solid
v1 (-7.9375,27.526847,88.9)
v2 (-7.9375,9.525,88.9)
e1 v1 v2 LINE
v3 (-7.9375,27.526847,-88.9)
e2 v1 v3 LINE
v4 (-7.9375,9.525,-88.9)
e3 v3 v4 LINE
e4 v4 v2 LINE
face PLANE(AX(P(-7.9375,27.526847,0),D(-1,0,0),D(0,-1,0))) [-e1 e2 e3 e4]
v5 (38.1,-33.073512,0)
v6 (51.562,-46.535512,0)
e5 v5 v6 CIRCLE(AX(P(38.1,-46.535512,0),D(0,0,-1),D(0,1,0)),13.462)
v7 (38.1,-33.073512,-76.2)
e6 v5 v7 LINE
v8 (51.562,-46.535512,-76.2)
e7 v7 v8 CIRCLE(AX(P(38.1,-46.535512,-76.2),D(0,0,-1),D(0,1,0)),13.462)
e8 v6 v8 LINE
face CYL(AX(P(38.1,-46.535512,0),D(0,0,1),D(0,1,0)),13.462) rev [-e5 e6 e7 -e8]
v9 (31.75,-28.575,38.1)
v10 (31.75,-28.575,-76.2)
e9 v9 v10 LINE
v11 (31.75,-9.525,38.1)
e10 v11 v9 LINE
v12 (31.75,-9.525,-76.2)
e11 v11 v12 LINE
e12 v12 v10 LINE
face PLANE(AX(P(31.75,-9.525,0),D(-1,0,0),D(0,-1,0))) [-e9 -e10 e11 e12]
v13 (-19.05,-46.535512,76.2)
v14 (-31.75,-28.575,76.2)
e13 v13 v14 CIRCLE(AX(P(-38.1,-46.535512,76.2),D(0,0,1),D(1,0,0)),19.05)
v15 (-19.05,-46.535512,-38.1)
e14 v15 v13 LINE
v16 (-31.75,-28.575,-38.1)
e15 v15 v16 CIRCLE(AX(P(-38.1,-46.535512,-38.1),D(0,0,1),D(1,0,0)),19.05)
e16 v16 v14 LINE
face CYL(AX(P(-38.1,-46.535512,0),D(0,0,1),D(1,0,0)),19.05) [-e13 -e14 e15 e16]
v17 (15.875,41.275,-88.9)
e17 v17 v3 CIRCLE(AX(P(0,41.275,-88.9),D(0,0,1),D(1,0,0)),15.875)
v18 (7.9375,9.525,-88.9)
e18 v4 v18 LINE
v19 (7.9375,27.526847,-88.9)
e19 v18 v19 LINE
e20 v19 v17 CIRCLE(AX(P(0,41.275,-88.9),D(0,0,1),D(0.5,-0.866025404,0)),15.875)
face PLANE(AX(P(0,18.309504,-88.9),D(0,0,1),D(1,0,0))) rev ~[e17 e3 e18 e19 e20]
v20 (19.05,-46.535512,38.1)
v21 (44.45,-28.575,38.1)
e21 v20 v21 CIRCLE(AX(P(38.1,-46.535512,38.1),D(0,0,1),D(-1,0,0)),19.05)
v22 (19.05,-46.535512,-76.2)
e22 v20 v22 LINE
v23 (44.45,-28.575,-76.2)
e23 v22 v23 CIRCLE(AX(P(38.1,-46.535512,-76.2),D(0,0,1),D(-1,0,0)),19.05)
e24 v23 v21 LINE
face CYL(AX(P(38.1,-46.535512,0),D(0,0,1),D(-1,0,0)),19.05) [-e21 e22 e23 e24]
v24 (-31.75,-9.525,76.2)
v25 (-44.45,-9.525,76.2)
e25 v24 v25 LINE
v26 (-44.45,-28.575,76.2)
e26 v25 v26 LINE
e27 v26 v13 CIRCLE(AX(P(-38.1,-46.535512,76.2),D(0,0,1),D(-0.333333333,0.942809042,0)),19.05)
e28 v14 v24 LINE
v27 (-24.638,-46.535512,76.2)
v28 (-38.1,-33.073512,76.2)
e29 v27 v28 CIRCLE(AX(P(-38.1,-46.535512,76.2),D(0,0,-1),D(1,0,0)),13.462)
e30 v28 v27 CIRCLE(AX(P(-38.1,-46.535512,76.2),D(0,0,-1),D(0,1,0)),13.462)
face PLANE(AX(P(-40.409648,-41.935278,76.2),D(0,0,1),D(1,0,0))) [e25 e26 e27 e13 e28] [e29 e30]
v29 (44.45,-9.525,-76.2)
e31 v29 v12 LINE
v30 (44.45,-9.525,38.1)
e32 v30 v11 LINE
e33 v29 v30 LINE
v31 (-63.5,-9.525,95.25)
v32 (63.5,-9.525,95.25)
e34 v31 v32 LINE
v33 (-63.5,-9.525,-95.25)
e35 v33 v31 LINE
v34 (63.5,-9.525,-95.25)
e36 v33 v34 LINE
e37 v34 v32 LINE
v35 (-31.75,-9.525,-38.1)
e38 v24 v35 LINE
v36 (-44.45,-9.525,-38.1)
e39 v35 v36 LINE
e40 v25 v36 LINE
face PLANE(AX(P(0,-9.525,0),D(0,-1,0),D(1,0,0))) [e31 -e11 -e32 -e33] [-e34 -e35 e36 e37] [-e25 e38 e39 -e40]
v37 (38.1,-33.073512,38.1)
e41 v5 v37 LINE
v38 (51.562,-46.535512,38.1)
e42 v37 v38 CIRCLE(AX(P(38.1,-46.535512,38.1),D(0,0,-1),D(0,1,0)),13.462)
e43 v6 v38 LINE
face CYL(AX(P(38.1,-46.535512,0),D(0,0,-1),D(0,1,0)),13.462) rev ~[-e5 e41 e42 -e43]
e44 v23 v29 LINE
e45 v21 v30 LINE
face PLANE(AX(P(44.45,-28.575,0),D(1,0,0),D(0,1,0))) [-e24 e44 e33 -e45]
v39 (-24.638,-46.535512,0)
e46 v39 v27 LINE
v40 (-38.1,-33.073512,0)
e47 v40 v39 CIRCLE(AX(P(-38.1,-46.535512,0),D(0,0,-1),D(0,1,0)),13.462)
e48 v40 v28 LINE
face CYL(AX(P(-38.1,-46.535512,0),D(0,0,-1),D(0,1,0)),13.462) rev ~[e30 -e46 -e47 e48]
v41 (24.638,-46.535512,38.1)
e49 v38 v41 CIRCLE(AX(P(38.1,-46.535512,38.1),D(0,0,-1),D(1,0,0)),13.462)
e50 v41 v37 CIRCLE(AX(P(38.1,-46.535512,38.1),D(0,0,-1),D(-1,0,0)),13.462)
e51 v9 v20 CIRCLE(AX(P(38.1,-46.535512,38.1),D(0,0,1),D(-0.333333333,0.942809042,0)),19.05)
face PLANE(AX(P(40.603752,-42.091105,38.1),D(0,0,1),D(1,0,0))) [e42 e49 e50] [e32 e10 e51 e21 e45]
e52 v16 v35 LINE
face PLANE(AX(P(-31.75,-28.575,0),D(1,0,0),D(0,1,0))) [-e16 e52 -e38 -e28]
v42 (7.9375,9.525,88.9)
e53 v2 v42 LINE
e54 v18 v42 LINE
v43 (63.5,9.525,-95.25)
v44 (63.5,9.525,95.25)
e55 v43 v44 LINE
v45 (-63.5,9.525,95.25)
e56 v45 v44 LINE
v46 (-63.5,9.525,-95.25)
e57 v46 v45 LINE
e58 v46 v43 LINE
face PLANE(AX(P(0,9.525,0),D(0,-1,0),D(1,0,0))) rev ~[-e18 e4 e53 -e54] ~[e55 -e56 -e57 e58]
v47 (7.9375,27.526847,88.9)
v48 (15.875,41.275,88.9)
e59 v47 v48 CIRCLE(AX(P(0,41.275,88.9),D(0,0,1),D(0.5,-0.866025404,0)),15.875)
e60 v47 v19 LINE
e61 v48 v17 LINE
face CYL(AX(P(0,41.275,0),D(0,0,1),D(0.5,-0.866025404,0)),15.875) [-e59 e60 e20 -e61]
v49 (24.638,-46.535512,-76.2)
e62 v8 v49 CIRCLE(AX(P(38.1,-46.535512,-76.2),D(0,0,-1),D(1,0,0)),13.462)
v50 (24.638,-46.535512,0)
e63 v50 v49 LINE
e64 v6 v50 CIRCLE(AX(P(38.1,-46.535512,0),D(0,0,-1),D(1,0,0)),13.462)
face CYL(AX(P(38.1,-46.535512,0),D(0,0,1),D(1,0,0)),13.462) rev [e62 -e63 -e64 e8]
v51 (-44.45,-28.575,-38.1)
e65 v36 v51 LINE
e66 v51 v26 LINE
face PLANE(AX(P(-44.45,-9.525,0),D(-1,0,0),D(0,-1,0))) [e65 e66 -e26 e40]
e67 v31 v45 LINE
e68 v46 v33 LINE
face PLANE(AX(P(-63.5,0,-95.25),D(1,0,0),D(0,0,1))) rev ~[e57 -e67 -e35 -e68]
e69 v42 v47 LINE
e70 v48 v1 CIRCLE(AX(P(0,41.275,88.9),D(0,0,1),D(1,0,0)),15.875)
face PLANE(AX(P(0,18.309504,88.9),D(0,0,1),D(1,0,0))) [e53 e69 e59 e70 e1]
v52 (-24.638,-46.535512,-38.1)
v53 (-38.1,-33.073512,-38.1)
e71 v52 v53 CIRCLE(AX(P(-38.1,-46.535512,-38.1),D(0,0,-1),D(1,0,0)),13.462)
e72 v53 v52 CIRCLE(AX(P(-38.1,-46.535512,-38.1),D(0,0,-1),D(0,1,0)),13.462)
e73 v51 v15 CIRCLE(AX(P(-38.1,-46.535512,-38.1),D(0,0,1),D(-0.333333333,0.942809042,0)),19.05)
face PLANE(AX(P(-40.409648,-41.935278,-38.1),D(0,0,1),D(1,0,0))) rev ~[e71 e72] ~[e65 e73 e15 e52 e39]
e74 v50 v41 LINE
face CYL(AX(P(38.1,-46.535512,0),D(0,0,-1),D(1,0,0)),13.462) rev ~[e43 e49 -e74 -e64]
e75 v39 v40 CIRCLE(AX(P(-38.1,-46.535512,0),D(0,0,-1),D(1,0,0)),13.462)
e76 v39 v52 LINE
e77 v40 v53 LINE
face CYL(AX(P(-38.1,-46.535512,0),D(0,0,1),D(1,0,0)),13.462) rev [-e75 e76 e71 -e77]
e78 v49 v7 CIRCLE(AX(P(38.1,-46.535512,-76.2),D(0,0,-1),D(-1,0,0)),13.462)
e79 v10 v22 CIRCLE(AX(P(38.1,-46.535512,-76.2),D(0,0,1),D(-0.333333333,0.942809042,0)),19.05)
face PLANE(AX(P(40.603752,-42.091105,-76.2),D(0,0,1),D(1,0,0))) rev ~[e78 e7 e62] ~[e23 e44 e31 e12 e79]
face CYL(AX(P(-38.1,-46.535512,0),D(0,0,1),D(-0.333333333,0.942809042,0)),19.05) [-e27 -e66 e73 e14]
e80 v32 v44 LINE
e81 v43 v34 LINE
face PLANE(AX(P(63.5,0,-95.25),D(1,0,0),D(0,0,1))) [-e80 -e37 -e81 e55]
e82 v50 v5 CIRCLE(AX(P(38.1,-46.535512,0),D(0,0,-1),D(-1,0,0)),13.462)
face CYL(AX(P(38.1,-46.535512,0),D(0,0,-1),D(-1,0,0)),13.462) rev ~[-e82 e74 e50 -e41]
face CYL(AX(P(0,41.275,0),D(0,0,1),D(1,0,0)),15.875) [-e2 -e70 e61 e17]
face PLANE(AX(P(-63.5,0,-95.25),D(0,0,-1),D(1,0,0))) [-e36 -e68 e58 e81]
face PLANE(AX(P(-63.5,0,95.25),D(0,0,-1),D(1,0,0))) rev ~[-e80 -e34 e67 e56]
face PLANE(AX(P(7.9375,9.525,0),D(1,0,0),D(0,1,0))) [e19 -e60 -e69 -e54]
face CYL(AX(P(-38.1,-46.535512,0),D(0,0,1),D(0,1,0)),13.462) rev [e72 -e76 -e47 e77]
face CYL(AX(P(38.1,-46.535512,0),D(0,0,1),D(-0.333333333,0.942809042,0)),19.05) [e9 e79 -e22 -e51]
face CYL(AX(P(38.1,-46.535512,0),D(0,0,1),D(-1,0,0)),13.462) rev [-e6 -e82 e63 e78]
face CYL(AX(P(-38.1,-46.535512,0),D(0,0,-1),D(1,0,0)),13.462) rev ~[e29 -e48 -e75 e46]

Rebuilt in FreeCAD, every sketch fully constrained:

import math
import FreeCAD as App
import Part
import Sketcher
Q = App.Units.Quantity


def add_polygon(sketch, points):
    """Adds a closed chain of lines whose ends are joined by coincident constraints."""
    first, n = sketch.GeometryCount, len(points)
    for a, b in zip(points, points[1:] + points[:1]):
        sketch.addGeometry(Part.LineSegment(App.Vector(*a, 0), App.Vector(*b, 0)), False)
    for i in range(n):
        sketch.addConstraint(Sketcher.Constraint("Coincident", first + i, 2, first + (i + 1) % n, 1))

doc = App.newDocument("Part")
params = doc.addObject("Spreadsheet::Sheet", "Params")
for row, (alias, value) in enumerate([
    ("sketch1_width", "5 in"),
    ("sketch1_height", "7.5 in"),
    ("pad1_length", "0.75 in"),
    ("sketch2_radius", "0.75 in"),
    ("sketch2_radius2", "0.53 in"),
    ("sketch2_width", "0.5 in"),
    ("sketch2_height", "0.75 in"),
    ("pad2_length", "3 in"),
    ("pad2_length2", "1.5 in"),
    ("sketch3_radius", "0.75 in"),
    ("sketch3_radius2", "0.53 in"),
    ("sketch3_width", "0.5 in"),
    ("sketch3_height", "0.75 in"),
    ("pad3_length", "1.5 in"),
    ("pad3_length2", "3 in"),
    ("sketch4_radius", "0.625 in"),
    ("sketch4_width", "0.625 in"),
    ("pad4_length", "7 in"),
], start=1):
    params.set(f"A{row}", alias)
    params.set(f"B{row}", "=" + value)
    params.setAlias(f"B{row}", alias)

body = doc.addObject("PartDesign::Body", "Body")

# Sketch on XZ plane
sketch1 = body.newObject("Sketcher::SketchObject", "Sketch")
sketch1.AttachmentSupport = (doc.getObject("XZ_Plane"), [""])
sketch1.MapMode = "FlatFace"
add_polygon(sketch1, [(-63.5, 95.25), (-63.5, -95.25), (63.5, -95.25), (63.5, 95.25)])  # lines 0-3
sketch1.addConstraint(Sketcher.Constraint("Vertical", 0))
sketch1.addConstraint(Sketcher.Constraint("Horizontal", 1))
sketch1.addConstraint(Sketcher.Constraint("Vertical", 2))
sketch1.addConstraint(Sketcher.Constraint("Horizontal", 3))
sketch1.addConstraint(Sketcher.Constraint("Symmetric", 0, 2, 2, 2, -1, 1))
sketch1.addConstraint(Sketcher.Constraint("DistanceX", 1, 1, 1, 2, Q("5 in")))
sketch1.addConstraint(Sketcher.Constraint("DistanceY", 0, 2, 0, 1, Q("7.5 in")))
sketch1.setExpression("Constraints[9]", "Params.sketch1_width")
sketch1.setExpression("Constraints[10]", "Params.sketch1_height")
pad1 = body.newObject("PartDesign::Pad", "Pad")
pad1.Profile = sketch1
pad1.setExpression("Length", "Params.pad1_length")
pad1.Midplane = True

# Sketch on XY plane
sketch2 = body.newObject("Sketcher::SketchObject", "Sketch001")
sketch2.AttachmentSupport = (doc.getObject("XY_Plane"), [""])
sketch2.MapMode = "FlatFace"
sketch2.addGeometry(Part.LineSegment(App.Vector(-44.45, -9.525, 0), App.Vector(-44.45, -28.575, 0)), False)
sketch2.addGeometry(Part.ArcOfCircle(Part.Circle(App.Vector(-38.1, -46.535512, 0), App.Vector(0, 0, 1), 19.05), math.radians(109.471221), math.radians(360)), False)
sketch2.addGeometry(Part.ArcOfCircle(Part.Circle(App.Vector(-38.1, -46.535512, 0), App.Vector(0, 0, 1), 19.05), math.radians(0), math.radians(70.528779)), False)
sketch2.addGeometry(Part.LineSegment(App.Vector(-31.75, -28.575, 0), App.Vector(-31.75, -9.525, 0)), False)
sketch2.addGeometry(Part.LineSegment(App.Vector(-31.75, -9.525, 0), App.Vector(-44.45, -9.525, 0)), False)
sketch2.addGeometry(Part.ArcOfCircle(Part.Circle(App.Vector(-38.1, -46.535512, 0), App.Vector(0, 0, 1), 13.462), math.radians(90), math.radians(360)), False)
sketch2.addGeometry(Part.ArcOfCircle(Part.Circle(App.Vector(-38.1, -46.535512, 0), App.Vector(0, 0, 1), 13.462), math.radians(0), math.radians(90)), False)
sketch2.addConstraint(Sketcher.Constraint("Coincident", 0, 2, 1, 1))
sketch2.addConstraint(Sketcher.Constraint("Tangent", 1, 2, 2, 1))
sketch2.addConstraint(Sketcher.Constraint("Coincident", 2, 2, 3, 1))
sketch2.addConstraint(Sketcher.Constraint("Coincident", 3, 2, 4, 1))
sketch2.addConstraint(Sketcher.Constraint("Coincident", 4, 2, 0, 1))
sketch2.addConstraint(Sketcher.Constraint("Tangent", 5, 1, 6, 2))
sketch2.addConstraint(Sketcher.Constraint("Coincident", 6, 1, 5, 2))
sketch2.addConstraint(Sketcher.Constraint("Vertical", 0))
sketch2.addConstraint(Sketcher.Constraint("Vertical", 3))
sketch2.addConstraint(Sketcher.Constraint("Horizontal", 4))
sketch2.addConstraint(Sketcher.Constraint("Coincident", 5, 3, 1, 3))
sketch2.addConstraint(Sketcher.Constraint("Equal", 1, 2))
sketch2.addConstraint(Sketcher.Constraint("Horizontal", 6, 3, 1, 2))
sketch2.addConstraint(Sketcher.Constraint("Horizontal", 0, 2, 2, 2))
sketch2.addConstraint(Sketcher.Constraint("Horizontal", 1, 2, 6, 1))
sketch2.addConstraint(Sketcher.Constraint("Vertical", 6, 3, 5, 1))
sketch2.addConstraint(Sketcher.Constraint("Radius", 1, Q("0.75 in")))
sketch2.addConstraint(Sketcher.Constraint("Radius", 5, Q("0.53 in")))
sketch2.addConstraint(Sketcher.Constraint("DistanceX", 4, 2, 4, 1, Q("0.5 in")))
sketch2.addConstraint(Sketcher.Constraint("DistanceY", 0, 2, 0, 1, Q("0.75 in")))
sketch2.addConstraint(Sketcher.Constraint("DistanceX", 1, 3, -1, 1, Q("1.5 in")))
sketch2.addConstraint(Sketcher.Constraint("DistanceY", 0, 2, -1, 1, Q("1.125 in")))
sketch2.setExpression("Constraints[16]", "Params.sketch2_radius")
sketch2.setExpression("Constraints[17]", "Params.sketch2_radius2")
sketch2.setExpression("Constraints[18]", "Params.sketch2_width")
sketch2.setExpression("Constraints[19]", "Params.sketch2_height")
pad2 = body.newObject("PartDesign::Pad", "Pad001")
pad2.Profile = sketch2
pad2.Type = "TwoLengths"
pad2.setExpression("Length", "Params.pad2_length")
pad2.setExpression("Length2", "Params.pad2_length2")

# Sketch on XY plane
sketch3 = body.newObject("Sketcher::SketchObject", "Sketch002")
sketch3.AttachmentSupport = (doc.getObject("XY_Plane"), [""])
sketch3.MapMode = "FlatFace"
sketch3.addGeometry(Part.ArcOfCircle(Part.Circle(App.Vector(38.1, -46.535512, 0), App.Vector(0, 0, 1), 19.05), math.radians(180), math.radians(430.528779)), False)
sketch3.addGeometry(Part.LineSegment(App.Vector(44.45, -28.575, 0), App.Vector(44.45, -9.525, 0)), False)
sketch3.addGeometry(Part.LineSegment(App.Vector(44.45, -9.525, 0), App.Vector(31.75, -9.525, 0)), False)
sketch3.addGeometry(Part.LineSegment(App.Vector(31.75, -9.525, 0), App.Vector(31.75, -28.575, 0)), False)
sketch3.addGeometry(Part.ArcOfCircle(Part.Circle(App.Vector(38.1, -46.535512, 0), App.Vector(0, 0, 1), 19.05), math.radians(109.471221), math.radians(180)), False)
sketch3.addGeometry(Part.ArcOfCircle(Part.Circle(App.Vector(38.1, -46.535512, 0), App.Vector(0, 0, 1), 13.462), math.radians(0), math.radians(90)), False)
sketch3.addGeometry(Part.ArcOfCircle(Part.Circle(App.Vector(38.1, -46.535512, 0), App.Vector(0, 0, 1), 13.462), math.radians(180), math.radians(360)), False)
sketch3.addGeometry(Part.ArcOfCircle(Part.Circle(App.Vector(38.1, -46.535512, 0), App.Vector(0, 0, 1), 13.462), math.radians(90), math.radians(180)), False)
sketch3.addConstraint(Sketcher.Constraint("Coincident", 0, 2, 1, 1))
sketch3.addConstraint(Sketcher.Constraint("Coincident", 1, 2, 2, 1))
sketch3.addConstraint(Sketcher.Constraint("Coincident", 2, 2, 3, 1))
sketch3.addConstraint(Sketcher.Constraint("Coincident", 3, 2, 4, 1))
sketch3.addConstraint(Sketcher.Constraint("Tangent", 4, 2, 0, 1))
sketch3.addConstraint(Sketcher.Constraint("Tangent", 5, 1, 6, 2))
sketch3.addConstraint(Sketcher.Constraint("Tangent", 6, 1, 7, 2))
sketch3.addConstraint(Sketcher.Constraint("Tangent", 7, 1, 5, 2))
sketch3.addConstraint(Sketcher.Constraint("Vertical", 1))
sketch3.addConstraint(Sketcher.Constraint("Horizontal", 2))
sketch3.addConstraint(Sketcher.Constraint("Vertical", 3))
sketch3.addConstraint(Sketcher.Constraint("Coincident", 5, 3, 0, 3))
sketch3.addConstraint(Sketcher.Constraint("Equal", 0, 4))
sketch3.addConstraint(Sketcher.Constraint("Horizontal", 0, 2, 3, 2))
sketch3.addConstraint(Sketcher.Constraint("Horizontal", 7, 3, 4, 2))
sketch3.addConstraint(Sketcher.Constraint("Horizontal", 4, 2, 5, 1))
sketch3.addConstraint(Sketcher.Constraint("Horizontal", 5, 1, 6, 1))
sketch3.addConstraint(Sketcher.Constraint("Vertical", 6, 3, 7, 1))
sketch3.addConstraint(Sketcher.Constraint("Radius", 0, Q("0.75 in")))
sketch3.addConstraint(Sketcher.Constraint("Radius", 5, Q("0.53 in")))
sketch3.addConstraint(Sketcher.Constraint("DistanceX", 2, 2, 2, 1, Q("0.5 in")))
sketch3.addConstraint(Sketcher.Constraint("DistanceY", 1, 1, 1, 2, Q("0.75 in")))
sketch3.addConstraint(Sketcher.Constraint("DistanceX", -1, 1, 0, 3, Q("1.5 in")))
sketch3.addConstraint(Sketcher.Constraint("DistanceY", 0, 2, -1, 1, Q("1.125 in")))
sketch3.setExpression("Constraints[18]", "Params.sketch3_radius")
sketch3.setExpression("Constraints[19]", "Params.sketch3_radius2")
sketch3.setExpression("Constraints[20]", "Params.sketch3_width")
sketch3.setExpression("Constraints[21]", "Params.sketch3_height")
pad3 = body.newObject("PartDesign::Pad", "Pad002")
pad3.Profile = sketch3
pad3.Type = "TwoLengths"
pad3.setExpression("Length", "Params.pad3_length")
pad3.setExpression("Length2", "Params.pad3_length2")

# Sketch on XY plane
sketch4 = body.newObject("Sketcher::SketchObject", "Sketch003")
sketch4.AttachmentSupport = (doc.getObject("XY_Plane"), [""])
sketch4.MapMode = "FlatFace"
sketch4.addGeometry(Part.LineSegment(App.Vector(-7.9375, 27.526847, 0), App.Vector(-7.9375, 9.525, 0)), False)
sketch4.addGeometry(Part.LineSegment(App.Vector(-7.9375, 9.525, 0), App.Vector(7.9375, 9.525, 0)), False)
sketch4.addGeometry(Part.LineSegment(App.Vector(7.9375, 9.525, 0), App.Vector(7.9375, 27.526847, 0)), False)
sketch4.addGeometry(Part.ArcOfCircle(Part.Circle(App.Vector(0, 41.275, 0), App.Vector(0, 0, 1), 15.875), math.radians(-60), math.radians(0)), False)
sketch4.addGeometry(Part.ArcOfCircle(Part.Circle(App.Vector(0, 41.275, 0), App.Vector(0, 0, 1), 15.875), math.radians(0), math.radians(240)), False)
sketch4.addConstraint(Sketcher.Constraint("Coincident", 0, 2, 1, 1))
sketch4.addConstraint(Sketcher.Constraint("Coincident", 1, 2, 2, 1))
sketch4.addConstraint(Sketcher.Constraint("Coincident", 2, 2, 3, 1))
sketch4.addConstraint(Sketcher.Constraint("Tangent", 3, 2, 4, 1))
sketch4.addConstraint(Sketcher.Constraint("Coincident", 4, 2, 0, 1))
sketch4.addConstraint(Sketcher.Constraint("Vertical", 0))
sketch4.addConstraint(Sketcher.Constraint("Horizontal", 1))
sketch4.addConstraint(Sketcher.Constraint("Vertical", 2))
sketch4.addConstraint(Sketcher.Constraint("Equal", 3, 4))
sketch4.addConstraint(Sketcher.Constraint("Symmetric", 2, 2, 4, 2, -2))
sketch4.addConstraint(Sketcher.Constraint("Horizontal", 4, 3, 3, 2))
sketch4.addConstraint(Sketcher.Constraint("Radius", 3, Q("0.625 in")))
sketch4.addConstraint(Sketcher.Constraint("DistanceX", 1, 1, 1, 2, Q("0.625 in")))
sketch4.addConstraint(Sketcher.Constraint("DistanceY", 0, 2, 3, 3, Q("1.25 in")))
sketch4.addConstraint(Sketcher.Constraint("DistanceY", -1, 1, 3, 3, Q("1.625 in")))
sketch4.setExpression("Constraints[11]", "Params.sketch4_radius")
sketch4.setExpression("Constraints[12]", "Params.sketch4_width")
pad4 = body.newObject("PartDesign::Pad", "Pad003")
pad4.Profile = sketch4
pad4.setExpression("Length", "Params.pad4_length")
pad4.Midplane = True

doc.recompute()
